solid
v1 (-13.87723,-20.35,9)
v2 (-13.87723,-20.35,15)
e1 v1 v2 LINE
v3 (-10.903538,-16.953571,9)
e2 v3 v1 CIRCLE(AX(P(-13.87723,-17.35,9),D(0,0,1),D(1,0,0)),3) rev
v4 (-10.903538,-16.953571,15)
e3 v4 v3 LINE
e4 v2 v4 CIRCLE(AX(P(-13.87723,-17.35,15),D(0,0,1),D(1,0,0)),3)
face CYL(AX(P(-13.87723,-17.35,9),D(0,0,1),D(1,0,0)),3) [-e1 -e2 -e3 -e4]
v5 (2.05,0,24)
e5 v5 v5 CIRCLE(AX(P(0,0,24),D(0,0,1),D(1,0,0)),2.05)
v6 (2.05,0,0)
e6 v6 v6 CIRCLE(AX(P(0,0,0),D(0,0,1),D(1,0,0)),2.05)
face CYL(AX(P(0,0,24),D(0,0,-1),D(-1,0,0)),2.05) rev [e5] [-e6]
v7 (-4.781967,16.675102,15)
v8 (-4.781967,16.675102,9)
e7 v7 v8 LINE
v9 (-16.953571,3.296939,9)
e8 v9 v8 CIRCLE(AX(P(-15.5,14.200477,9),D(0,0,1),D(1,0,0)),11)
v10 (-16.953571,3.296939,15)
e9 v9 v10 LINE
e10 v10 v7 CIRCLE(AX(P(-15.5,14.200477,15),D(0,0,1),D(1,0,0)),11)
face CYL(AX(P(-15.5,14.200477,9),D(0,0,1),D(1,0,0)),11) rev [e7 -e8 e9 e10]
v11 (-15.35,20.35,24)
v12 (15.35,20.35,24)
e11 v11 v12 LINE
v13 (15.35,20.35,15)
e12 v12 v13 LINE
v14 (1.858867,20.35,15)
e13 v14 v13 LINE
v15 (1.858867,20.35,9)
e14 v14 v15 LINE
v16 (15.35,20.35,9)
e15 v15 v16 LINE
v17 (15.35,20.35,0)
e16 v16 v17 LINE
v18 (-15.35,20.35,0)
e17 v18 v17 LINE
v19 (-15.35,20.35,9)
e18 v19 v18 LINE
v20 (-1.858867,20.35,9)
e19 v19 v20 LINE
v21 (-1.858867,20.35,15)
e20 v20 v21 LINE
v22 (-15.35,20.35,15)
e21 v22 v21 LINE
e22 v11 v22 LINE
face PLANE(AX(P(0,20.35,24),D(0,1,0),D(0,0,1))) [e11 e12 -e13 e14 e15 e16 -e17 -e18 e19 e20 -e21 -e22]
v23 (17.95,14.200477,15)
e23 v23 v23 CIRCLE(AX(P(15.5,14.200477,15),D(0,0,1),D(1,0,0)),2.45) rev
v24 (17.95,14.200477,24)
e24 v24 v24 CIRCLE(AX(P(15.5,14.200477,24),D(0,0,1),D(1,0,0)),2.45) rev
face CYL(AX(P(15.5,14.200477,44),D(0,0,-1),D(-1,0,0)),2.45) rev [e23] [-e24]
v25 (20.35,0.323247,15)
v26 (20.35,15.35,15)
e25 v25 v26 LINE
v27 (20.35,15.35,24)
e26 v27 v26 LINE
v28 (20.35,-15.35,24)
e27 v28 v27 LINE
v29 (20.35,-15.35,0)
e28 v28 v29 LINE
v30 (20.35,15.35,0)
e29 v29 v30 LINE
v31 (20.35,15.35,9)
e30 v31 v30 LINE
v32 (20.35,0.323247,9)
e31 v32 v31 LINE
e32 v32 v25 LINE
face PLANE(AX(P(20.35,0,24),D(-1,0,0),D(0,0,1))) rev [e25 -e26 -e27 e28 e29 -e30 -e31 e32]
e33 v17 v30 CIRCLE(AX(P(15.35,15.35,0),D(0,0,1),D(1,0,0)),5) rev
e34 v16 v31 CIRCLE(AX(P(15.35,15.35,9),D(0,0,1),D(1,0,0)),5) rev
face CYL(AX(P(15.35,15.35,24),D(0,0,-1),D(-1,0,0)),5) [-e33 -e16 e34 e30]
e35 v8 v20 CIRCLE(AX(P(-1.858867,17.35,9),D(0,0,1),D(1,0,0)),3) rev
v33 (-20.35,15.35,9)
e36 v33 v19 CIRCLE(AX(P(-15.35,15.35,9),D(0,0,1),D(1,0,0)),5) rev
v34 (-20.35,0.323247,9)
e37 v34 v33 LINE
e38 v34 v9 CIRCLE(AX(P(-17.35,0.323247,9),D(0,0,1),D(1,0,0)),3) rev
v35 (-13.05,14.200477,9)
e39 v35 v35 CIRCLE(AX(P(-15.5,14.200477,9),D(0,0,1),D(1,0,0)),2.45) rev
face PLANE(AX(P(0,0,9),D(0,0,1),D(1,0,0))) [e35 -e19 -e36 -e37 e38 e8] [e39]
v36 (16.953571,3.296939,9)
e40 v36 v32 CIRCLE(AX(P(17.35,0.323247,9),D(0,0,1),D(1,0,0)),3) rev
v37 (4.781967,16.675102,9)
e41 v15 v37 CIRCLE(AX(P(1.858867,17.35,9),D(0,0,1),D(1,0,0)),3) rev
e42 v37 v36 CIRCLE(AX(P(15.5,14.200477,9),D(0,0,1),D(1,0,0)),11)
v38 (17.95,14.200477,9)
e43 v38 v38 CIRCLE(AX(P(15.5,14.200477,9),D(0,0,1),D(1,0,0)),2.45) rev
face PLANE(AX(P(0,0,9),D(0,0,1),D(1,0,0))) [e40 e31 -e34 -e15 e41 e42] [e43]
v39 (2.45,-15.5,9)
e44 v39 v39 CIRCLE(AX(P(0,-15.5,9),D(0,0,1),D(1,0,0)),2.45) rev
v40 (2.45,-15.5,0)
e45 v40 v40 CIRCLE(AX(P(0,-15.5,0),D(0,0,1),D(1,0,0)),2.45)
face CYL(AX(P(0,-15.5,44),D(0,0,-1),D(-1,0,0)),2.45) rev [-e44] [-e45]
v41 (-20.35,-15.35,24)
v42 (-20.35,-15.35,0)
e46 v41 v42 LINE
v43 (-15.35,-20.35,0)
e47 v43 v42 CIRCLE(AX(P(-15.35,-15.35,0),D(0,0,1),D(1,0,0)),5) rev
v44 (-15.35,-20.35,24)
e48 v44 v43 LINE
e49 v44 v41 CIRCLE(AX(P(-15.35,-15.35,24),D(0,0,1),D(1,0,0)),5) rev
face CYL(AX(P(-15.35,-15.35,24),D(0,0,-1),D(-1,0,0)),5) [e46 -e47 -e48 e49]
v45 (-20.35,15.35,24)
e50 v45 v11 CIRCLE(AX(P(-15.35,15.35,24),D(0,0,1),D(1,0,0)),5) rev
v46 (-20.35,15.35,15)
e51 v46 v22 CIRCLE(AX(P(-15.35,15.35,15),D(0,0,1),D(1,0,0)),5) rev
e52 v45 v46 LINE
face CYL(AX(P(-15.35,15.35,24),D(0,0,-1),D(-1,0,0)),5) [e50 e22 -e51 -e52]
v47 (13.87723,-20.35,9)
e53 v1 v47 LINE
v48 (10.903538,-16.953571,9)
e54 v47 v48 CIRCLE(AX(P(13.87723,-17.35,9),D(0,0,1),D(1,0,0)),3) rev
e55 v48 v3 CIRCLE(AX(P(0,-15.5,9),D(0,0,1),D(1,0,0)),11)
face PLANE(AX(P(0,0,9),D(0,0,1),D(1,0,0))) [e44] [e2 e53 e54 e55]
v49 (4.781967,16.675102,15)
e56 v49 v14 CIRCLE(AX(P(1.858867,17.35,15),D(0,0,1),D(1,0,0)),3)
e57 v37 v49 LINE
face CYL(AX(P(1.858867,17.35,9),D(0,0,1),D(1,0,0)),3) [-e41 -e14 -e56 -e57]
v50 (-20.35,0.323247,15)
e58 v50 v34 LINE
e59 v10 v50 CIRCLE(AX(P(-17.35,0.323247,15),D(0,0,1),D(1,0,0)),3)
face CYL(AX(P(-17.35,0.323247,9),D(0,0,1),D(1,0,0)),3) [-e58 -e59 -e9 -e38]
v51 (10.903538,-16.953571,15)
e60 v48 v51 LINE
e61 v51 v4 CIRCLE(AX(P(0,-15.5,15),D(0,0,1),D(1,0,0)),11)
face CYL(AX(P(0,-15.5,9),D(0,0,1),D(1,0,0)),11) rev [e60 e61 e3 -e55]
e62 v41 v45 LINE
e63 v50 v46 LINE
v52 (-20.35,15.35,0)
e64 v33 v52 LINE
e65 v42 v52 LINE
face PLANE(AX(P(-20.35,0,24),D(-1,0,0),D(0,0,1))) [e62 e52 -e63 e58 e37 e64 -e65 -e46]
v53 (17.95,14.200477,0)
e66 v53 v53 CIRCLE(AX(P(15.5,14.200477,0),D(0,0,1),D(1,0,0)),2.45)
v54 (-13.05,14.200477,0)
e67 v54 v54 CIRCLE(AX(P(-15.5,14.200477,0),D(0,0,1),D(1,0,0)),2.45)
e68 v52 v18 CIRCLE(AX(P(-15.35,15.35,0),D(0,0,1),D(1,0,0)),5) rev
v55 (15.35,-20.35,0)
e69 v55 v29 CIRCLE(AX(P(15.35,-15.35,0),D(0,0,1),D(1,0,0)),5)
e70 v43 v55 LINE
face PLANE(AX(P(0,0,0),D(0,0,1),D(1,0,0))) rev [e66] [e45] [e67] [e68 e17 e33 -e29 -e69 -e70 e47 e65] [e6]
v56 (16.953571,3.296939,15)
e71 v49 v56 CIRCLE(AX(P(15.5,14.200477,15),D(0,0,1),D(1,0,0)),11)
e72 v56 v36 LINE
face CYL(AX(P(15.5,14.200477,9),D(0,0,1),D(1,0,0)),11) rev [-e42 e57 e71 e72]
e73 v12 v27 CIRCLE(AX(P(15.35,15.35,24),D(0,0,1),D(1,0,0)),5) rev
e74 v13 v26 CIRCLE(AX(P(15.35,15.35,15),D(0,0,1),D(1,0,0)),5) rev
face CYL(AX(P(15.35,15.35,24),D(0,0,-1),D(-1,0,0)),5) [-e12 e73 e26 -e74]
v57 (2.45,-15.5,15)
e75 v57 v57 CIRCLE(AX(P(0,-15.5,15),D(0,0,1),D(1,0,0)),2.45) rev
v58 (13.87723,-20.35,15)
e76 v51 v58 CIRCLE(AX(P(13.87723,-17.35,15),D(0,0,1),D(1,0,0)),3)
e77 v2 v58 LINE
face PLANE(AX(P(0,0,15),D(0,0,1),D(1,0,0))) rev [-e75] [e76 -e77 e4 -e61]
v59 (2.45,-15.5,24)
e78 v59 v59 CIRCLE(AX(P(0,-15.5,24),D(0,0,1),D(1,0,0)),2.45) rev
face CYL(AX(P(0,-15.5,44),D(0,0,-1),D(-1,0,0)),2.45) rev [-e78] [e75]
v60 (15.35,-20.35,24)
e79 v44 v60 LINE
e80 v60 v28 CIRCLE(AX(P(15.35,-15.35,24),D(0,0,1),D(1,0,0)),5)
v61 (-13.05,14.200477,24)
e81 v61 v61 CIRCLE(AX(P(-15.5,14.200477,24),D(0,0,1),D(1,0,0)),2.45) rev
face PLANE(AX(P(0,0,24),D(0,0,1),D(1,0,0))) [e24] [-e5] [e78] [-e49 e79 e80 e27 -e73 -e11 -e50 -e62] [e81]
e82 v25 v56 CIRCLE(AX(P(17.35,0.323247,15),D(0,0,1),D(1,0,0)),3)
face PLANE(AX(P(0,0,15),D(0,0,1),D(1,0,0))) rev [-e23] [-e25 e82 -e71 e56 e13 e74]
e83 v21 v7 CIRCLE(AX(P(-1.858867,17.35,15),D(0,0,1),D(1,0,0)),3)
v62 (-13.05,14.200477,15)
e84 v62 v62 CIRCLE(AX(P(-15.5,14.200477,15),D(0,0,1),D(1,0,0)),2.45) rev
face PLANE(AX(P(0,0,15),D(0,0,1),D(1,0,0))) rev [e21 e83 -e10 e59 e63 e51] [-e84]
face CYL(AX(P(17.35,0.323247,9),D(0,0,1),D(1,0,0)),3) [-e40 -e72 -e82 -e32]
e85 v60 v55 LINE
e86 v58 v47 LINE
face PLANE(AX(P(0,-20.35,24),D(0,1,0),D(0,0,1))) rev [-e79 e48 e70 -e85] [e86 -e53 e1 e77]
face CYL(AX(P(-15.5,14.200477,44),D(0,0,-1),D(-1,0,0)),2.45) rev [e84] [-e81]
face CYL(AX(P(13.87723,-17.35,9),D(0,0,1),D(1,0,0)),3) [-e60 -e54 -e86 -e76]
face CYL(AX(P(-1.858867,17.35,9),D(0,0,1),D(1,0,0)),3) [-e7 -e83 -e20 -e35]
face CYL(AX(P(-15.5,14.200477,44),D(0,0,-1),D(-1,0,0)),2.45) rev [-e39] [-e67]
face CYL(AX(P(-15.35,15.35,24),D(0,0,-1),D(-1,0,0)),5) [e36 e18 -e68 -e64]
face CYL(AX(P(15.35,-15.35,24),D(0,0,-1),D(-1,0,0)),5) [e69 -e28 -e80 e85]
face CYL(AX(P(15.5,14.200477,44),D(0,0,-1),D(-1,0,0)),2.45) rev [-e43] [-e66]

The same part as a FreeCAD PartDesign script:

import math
import FreeCAD as App
import Part
import Sketcher
from FreeCAD import Vector


def edges_at(feature, points):
    """Names of the edges that pass closest to the given points."""
    edges = feature.Shape.Edges
    near = lambda p: min(range(len(edges)), key=lambda i: edges[i].distToShape(Part.Vertex(*p))[0])
    return sorted({f"Edge{near(p) + 1}" for p in points})

doc = App.newDocument("Part")
body = doc.addObject("PartDesign::Body", "Body")

# Sketch on XY plane
sketch1 = doc.addObject("Sketcher::SketchObject", "Sketch")
body.addObject(sketch1)
sketch1.AttachmentSupport = (doc.XY_Plane, [""])
sketch1.MapMode = "FlatFace"
sketch1.addGeometry([
    Part.LineSegment(Vector(-20.4, 15.3, 0), Vector(-20.4, -15.3, 0)),  # 0
    Part.ArcOfCircle(Part.Circle(Vector(-15.3, -15.3, 0), Vector(0, 0, 1), 5), math.radians(180), math.radians(270)),  # 1
    Part.LineSegment(Vector(-15.3, -20.4, 0), Vector(15.3, -20.4, 0)),  # 2
    Part.ArcOfCircle(Part.Circle(Vector(15.3, -15.3, 0), Vector(0, 0, 1), 5), math.radians(-90), math.radians(0)),  # 3
    Part.LineSegment(Vector(20.4, -15.3, 0), Vector(20.4, 15.3, 0)),  # 4
    Part.ArcOfCircle(Part.Circle(Vector(15.3, 15.3, 0), Vector(0, 0, 1), 5), math.radians(0), math.radians(90)),  # 5
    Part.LineSegment(Vector(15.3, 20.4, 0), Vector(-15.3, 20.4, 0)),  # 6
    Part.ArcOfCircle(Part.Circle(Vector(-15.3, 15.3, 0), Vector(0, 0, 1), 5), math.radians(90), math.radians(180)),  # 7
    Part.Circle(Vector(0, 0, 0), Vector(0, 0, 1), 2),  # 8
], False)
sketch1.addConstraint([
    Sketcher.Constraint("Tangent", 0, 2, 1, 1),
    Sketcher.Constraint("Tangent", 1, 2, 2, 1),
    Sketcher.Constraint("Tangent", 2, 2, 3, 1),
    Sketcher.Constraint("Tangent", 3, 2, 4, 1),
    Sketcher.Constraint("Tangent", 4, 2, 5, 1),
    Sketcher.Constraint("Tangent", 5, 2, 6, 1),
    Sketcher.Constraint("Tangent", 6, 2, 7, 1),
    Sketcher.Constraint("Tangent", 7, 2, 0, 1),
    Sketcher.Constraint("Vertical", 0),
    Sketcher.Constraint("Horizontal", 2),
    Sketcher.Constraint("Vertical", 4),
    Sketcher.Constraint("Horizontal", 6),
    Sketcher.Constraint("Coincident", 8, 3, -1, 1),
    Sketcher.Constraint("Equal", 1, 3),
    Sketcher.Constraint("Equal", 3, 5),
    Sketcher.Constraint("Equal", 5, 7),
    Sketcher.Constraint("Symmetric", 1, 3, 5, 3, -1, 1),
    Sketcher.Constraint("Equal", 6, 0),
    Sketcher.Constraint("Radius", 1, 5.0),
    Sketcher.Constraint("Diameter", 8, 4.1),
    Sketcher.Constraint("DistanceX", 2, 1, 2, 2, 30.7),
])
pad1 = doc.addObject("PartDesign::Pad", "Pad")
body.addObject(pad1)
pad1.Profile = sketch1
pad1.Length = 24

# Sketch on XY plane
sketch2 = doc.addObject("Sketcher::SketchObject", "Sketch001")
body.addObject(sketch2)
sketch2.AttachmentSupport = (doc.XY_Plane, [""])
sketch2.MapMode = "FlatFace"
sketch2.AttachmentOffset = App.Placement(Vector(0, 0, 9), App.Rotation())
sketch2.addGeometry([
    Part.ArcOfCircle(Part.Circle(Vector(-15.5, 14.2, 0), Vector(0, 0, 1), 11), math.radians(34), math.radians(244)),  # 0
    Part.ArcOfCircle(Part.Circle(Vector(-15.5, 14.2, 0), Vector(0, 0, 1), 11), math.radians(-116), math.radians(0)),  # 1
    Part.ArcOfCircle(Part.Circle(Vector(-15.5, 14.2, 0), Vector(0, 0, 1), 11), math.radians(0), math.radians(34)),  # 2
    Part.ArcOfCircle(Part.Circle(Vector(15.5, 14.2, 0), Vector(0, 0, 1), 11), math.radians(146), math.radians(296)),  # 3
    Part.ArcOfCircle(Part.Circle(Vector(15.5, 14.2, 0), Vector(0, 0, 1), 11), math.radians(-64), math.radians(0)),  # 4
    Part.ArcOfCircle(Part.Circle(Vector(15.5, 14.2, 0), Vector(0, 0, 1), 11), math.radians(0), math.radians(146)),  # 5
    Part.ArcOfCircle(Part.Circle(Vector(0, -15.5, 0), Vector(0, 0, 1), 11), math.radians(0), math.radians(206)),  # 6
    Part.ArcOfCircle(Part.Circle(Vector(0, -15.5, 0), Vector(0, 0, 1), 11), math.radians(-154), math.radians(-26)),  # 7
    Part.ArcOfCircle(Part.Circle(Vector(0, -15.5, 0), Vector(0, 0, 1), 11), math.radians(-26), math.radians(0)),  # 8
], False)
sketch2.addConstraint([
    Sketcher.Constraint("Tangent", 0, 2, 1, 1),
    Sketcher.Constraint("Tangent", 1, 2, 2, 1),
    Sketcher.Constraint("Tangent", 2, 2, 0, 1),
    Sketcher.Constraint("Tangent", 3, 2, 4, 1),
    Sketcher.Constraint("Tangent", 4, 2, 5, 1),
    Sketcher.Constraint("Tangent", 5, 2, 3, 1),
    Sketcher.Constraint("Tangent", 6, 2, 7, 1),
    Sketcher.Constraint("Tangent", 7, 2, 8, 1),
    Sketcher.Constraint("Tangent", 8, 2, 6, 1),
    Sketcher.Constraint("Equal", 2, 3),
    Sketcher.Constraint("Equal", 5, 6),
    Sketcher.Constraint("Symmetric", 0, 3, 3, 3, -2),
    Sketcher.Constraint("Symmetric", 6, 2, 7, 2, -2),
    Sketcher.Constraint("Horizontal", 5, 3, 1, 2),
    Sketcher.Constraint("Horizontal", 0, 2, 3, 2),
    Sketcher.Constraint("Horizontal", 1, 2, 4, 2),
    Sketcher.Constraint("Horizontal", 2, 2, 5, 2),
    Sketcher.Constraint("Horizontal", 7, 3, 8, 2),
    Sketcher.Constraint("Radius", 0, 11.0),
    Sketcher.Constraint("DistanceX", 2, 3, 3, 3, 31.0),
    Sketcher.Constraint("DistanceY", 6, 3, -1, 1, 15.5),
    Sketcher.Constraint("DistanceX", 0, 2, -1, 1, 20.35),
    Sketcher.Constraint("DistanceY", -1, 1, 2, 2, 20.35),
    Sketcher.Constraint("DistanceY", 6, 2, -1, 1, 20.35),
    Sketcher.Constraint("DistanceX", 2, 2, -1, 1, 6.379509),
])
pocket1 = doc.addObject("PartDesign::Pocket", "Pocket")
body.addObject(pocket1)
pocket1.Profile = sketch2
pocket1.Length = 6
pocket1.Reversed = True

# Sketch on XY plane
sketch3 = doc.addObject("Sketcher::SketchObject", "Sketch002")
body.addObject(sketch3)
sketch3.AttachmentSupport = (doc.XY_Plane, [""])
sketch3.MapMode = "FlatFace"
sketch3.addGeometry([
    Part.Circle(Vector(-15.5, 14.2, 0), Vector(0, 0, 1), 2.5),
    Part.Circle(Vector(0, -15.5, 0), Vector(0, 0, 1), 2.5),
    Part.Circle(Vector(15.5, 14.2, 0), Vector(0, 0, 1), 2.5),
], False)
sketch3.addConstraint([
    Sketcher.Constraint("Equal", 0, 1),
    Sketcher.Constraint("Equal", 1, 2),
    Sketcher.Constraint("Symmetric", 0, 3, 2, 3, -2),
    Sketcher.Constraint("PointOnObject", 1, 3, -2),
    Sketcher.Constraint("Diameter", 0, 4.9),
    Sketcher.Constraint("DistanceX", 0, 3, 2, 3, 31.0),
    Sketcher.Constraint("DistanceY", 1, 3, -1, 1, 15.5),
    Sketcher.Constraint("DistanceY", -1, 1, 0, 3, 14.200477),
])
pocket2 = doc.addObject("PartDesign::Pocket", "Pocket001")
body.addObject(pocket2)
pocket2.Profile = sketch3
pocket2.Length = 44
pocket2.Reversed = True
doc.recompute()

fillet = doc.addObject("PartDesign::Fillet", "Fillet")
body.addObject(fillet)
fillet.Base = (pocket2, edges_at(pocket2, [
    (20.35, 4.327, 12),
    (9.873, -20.35, 12),
    (-9.873, -20.35, 12),
    (-20.35, 4.327, 12),
    (6.38, 20.35, 12),
    (-6.38, 20.35, 12),
]))
fillet.Radius = 3

doc.recompute()
